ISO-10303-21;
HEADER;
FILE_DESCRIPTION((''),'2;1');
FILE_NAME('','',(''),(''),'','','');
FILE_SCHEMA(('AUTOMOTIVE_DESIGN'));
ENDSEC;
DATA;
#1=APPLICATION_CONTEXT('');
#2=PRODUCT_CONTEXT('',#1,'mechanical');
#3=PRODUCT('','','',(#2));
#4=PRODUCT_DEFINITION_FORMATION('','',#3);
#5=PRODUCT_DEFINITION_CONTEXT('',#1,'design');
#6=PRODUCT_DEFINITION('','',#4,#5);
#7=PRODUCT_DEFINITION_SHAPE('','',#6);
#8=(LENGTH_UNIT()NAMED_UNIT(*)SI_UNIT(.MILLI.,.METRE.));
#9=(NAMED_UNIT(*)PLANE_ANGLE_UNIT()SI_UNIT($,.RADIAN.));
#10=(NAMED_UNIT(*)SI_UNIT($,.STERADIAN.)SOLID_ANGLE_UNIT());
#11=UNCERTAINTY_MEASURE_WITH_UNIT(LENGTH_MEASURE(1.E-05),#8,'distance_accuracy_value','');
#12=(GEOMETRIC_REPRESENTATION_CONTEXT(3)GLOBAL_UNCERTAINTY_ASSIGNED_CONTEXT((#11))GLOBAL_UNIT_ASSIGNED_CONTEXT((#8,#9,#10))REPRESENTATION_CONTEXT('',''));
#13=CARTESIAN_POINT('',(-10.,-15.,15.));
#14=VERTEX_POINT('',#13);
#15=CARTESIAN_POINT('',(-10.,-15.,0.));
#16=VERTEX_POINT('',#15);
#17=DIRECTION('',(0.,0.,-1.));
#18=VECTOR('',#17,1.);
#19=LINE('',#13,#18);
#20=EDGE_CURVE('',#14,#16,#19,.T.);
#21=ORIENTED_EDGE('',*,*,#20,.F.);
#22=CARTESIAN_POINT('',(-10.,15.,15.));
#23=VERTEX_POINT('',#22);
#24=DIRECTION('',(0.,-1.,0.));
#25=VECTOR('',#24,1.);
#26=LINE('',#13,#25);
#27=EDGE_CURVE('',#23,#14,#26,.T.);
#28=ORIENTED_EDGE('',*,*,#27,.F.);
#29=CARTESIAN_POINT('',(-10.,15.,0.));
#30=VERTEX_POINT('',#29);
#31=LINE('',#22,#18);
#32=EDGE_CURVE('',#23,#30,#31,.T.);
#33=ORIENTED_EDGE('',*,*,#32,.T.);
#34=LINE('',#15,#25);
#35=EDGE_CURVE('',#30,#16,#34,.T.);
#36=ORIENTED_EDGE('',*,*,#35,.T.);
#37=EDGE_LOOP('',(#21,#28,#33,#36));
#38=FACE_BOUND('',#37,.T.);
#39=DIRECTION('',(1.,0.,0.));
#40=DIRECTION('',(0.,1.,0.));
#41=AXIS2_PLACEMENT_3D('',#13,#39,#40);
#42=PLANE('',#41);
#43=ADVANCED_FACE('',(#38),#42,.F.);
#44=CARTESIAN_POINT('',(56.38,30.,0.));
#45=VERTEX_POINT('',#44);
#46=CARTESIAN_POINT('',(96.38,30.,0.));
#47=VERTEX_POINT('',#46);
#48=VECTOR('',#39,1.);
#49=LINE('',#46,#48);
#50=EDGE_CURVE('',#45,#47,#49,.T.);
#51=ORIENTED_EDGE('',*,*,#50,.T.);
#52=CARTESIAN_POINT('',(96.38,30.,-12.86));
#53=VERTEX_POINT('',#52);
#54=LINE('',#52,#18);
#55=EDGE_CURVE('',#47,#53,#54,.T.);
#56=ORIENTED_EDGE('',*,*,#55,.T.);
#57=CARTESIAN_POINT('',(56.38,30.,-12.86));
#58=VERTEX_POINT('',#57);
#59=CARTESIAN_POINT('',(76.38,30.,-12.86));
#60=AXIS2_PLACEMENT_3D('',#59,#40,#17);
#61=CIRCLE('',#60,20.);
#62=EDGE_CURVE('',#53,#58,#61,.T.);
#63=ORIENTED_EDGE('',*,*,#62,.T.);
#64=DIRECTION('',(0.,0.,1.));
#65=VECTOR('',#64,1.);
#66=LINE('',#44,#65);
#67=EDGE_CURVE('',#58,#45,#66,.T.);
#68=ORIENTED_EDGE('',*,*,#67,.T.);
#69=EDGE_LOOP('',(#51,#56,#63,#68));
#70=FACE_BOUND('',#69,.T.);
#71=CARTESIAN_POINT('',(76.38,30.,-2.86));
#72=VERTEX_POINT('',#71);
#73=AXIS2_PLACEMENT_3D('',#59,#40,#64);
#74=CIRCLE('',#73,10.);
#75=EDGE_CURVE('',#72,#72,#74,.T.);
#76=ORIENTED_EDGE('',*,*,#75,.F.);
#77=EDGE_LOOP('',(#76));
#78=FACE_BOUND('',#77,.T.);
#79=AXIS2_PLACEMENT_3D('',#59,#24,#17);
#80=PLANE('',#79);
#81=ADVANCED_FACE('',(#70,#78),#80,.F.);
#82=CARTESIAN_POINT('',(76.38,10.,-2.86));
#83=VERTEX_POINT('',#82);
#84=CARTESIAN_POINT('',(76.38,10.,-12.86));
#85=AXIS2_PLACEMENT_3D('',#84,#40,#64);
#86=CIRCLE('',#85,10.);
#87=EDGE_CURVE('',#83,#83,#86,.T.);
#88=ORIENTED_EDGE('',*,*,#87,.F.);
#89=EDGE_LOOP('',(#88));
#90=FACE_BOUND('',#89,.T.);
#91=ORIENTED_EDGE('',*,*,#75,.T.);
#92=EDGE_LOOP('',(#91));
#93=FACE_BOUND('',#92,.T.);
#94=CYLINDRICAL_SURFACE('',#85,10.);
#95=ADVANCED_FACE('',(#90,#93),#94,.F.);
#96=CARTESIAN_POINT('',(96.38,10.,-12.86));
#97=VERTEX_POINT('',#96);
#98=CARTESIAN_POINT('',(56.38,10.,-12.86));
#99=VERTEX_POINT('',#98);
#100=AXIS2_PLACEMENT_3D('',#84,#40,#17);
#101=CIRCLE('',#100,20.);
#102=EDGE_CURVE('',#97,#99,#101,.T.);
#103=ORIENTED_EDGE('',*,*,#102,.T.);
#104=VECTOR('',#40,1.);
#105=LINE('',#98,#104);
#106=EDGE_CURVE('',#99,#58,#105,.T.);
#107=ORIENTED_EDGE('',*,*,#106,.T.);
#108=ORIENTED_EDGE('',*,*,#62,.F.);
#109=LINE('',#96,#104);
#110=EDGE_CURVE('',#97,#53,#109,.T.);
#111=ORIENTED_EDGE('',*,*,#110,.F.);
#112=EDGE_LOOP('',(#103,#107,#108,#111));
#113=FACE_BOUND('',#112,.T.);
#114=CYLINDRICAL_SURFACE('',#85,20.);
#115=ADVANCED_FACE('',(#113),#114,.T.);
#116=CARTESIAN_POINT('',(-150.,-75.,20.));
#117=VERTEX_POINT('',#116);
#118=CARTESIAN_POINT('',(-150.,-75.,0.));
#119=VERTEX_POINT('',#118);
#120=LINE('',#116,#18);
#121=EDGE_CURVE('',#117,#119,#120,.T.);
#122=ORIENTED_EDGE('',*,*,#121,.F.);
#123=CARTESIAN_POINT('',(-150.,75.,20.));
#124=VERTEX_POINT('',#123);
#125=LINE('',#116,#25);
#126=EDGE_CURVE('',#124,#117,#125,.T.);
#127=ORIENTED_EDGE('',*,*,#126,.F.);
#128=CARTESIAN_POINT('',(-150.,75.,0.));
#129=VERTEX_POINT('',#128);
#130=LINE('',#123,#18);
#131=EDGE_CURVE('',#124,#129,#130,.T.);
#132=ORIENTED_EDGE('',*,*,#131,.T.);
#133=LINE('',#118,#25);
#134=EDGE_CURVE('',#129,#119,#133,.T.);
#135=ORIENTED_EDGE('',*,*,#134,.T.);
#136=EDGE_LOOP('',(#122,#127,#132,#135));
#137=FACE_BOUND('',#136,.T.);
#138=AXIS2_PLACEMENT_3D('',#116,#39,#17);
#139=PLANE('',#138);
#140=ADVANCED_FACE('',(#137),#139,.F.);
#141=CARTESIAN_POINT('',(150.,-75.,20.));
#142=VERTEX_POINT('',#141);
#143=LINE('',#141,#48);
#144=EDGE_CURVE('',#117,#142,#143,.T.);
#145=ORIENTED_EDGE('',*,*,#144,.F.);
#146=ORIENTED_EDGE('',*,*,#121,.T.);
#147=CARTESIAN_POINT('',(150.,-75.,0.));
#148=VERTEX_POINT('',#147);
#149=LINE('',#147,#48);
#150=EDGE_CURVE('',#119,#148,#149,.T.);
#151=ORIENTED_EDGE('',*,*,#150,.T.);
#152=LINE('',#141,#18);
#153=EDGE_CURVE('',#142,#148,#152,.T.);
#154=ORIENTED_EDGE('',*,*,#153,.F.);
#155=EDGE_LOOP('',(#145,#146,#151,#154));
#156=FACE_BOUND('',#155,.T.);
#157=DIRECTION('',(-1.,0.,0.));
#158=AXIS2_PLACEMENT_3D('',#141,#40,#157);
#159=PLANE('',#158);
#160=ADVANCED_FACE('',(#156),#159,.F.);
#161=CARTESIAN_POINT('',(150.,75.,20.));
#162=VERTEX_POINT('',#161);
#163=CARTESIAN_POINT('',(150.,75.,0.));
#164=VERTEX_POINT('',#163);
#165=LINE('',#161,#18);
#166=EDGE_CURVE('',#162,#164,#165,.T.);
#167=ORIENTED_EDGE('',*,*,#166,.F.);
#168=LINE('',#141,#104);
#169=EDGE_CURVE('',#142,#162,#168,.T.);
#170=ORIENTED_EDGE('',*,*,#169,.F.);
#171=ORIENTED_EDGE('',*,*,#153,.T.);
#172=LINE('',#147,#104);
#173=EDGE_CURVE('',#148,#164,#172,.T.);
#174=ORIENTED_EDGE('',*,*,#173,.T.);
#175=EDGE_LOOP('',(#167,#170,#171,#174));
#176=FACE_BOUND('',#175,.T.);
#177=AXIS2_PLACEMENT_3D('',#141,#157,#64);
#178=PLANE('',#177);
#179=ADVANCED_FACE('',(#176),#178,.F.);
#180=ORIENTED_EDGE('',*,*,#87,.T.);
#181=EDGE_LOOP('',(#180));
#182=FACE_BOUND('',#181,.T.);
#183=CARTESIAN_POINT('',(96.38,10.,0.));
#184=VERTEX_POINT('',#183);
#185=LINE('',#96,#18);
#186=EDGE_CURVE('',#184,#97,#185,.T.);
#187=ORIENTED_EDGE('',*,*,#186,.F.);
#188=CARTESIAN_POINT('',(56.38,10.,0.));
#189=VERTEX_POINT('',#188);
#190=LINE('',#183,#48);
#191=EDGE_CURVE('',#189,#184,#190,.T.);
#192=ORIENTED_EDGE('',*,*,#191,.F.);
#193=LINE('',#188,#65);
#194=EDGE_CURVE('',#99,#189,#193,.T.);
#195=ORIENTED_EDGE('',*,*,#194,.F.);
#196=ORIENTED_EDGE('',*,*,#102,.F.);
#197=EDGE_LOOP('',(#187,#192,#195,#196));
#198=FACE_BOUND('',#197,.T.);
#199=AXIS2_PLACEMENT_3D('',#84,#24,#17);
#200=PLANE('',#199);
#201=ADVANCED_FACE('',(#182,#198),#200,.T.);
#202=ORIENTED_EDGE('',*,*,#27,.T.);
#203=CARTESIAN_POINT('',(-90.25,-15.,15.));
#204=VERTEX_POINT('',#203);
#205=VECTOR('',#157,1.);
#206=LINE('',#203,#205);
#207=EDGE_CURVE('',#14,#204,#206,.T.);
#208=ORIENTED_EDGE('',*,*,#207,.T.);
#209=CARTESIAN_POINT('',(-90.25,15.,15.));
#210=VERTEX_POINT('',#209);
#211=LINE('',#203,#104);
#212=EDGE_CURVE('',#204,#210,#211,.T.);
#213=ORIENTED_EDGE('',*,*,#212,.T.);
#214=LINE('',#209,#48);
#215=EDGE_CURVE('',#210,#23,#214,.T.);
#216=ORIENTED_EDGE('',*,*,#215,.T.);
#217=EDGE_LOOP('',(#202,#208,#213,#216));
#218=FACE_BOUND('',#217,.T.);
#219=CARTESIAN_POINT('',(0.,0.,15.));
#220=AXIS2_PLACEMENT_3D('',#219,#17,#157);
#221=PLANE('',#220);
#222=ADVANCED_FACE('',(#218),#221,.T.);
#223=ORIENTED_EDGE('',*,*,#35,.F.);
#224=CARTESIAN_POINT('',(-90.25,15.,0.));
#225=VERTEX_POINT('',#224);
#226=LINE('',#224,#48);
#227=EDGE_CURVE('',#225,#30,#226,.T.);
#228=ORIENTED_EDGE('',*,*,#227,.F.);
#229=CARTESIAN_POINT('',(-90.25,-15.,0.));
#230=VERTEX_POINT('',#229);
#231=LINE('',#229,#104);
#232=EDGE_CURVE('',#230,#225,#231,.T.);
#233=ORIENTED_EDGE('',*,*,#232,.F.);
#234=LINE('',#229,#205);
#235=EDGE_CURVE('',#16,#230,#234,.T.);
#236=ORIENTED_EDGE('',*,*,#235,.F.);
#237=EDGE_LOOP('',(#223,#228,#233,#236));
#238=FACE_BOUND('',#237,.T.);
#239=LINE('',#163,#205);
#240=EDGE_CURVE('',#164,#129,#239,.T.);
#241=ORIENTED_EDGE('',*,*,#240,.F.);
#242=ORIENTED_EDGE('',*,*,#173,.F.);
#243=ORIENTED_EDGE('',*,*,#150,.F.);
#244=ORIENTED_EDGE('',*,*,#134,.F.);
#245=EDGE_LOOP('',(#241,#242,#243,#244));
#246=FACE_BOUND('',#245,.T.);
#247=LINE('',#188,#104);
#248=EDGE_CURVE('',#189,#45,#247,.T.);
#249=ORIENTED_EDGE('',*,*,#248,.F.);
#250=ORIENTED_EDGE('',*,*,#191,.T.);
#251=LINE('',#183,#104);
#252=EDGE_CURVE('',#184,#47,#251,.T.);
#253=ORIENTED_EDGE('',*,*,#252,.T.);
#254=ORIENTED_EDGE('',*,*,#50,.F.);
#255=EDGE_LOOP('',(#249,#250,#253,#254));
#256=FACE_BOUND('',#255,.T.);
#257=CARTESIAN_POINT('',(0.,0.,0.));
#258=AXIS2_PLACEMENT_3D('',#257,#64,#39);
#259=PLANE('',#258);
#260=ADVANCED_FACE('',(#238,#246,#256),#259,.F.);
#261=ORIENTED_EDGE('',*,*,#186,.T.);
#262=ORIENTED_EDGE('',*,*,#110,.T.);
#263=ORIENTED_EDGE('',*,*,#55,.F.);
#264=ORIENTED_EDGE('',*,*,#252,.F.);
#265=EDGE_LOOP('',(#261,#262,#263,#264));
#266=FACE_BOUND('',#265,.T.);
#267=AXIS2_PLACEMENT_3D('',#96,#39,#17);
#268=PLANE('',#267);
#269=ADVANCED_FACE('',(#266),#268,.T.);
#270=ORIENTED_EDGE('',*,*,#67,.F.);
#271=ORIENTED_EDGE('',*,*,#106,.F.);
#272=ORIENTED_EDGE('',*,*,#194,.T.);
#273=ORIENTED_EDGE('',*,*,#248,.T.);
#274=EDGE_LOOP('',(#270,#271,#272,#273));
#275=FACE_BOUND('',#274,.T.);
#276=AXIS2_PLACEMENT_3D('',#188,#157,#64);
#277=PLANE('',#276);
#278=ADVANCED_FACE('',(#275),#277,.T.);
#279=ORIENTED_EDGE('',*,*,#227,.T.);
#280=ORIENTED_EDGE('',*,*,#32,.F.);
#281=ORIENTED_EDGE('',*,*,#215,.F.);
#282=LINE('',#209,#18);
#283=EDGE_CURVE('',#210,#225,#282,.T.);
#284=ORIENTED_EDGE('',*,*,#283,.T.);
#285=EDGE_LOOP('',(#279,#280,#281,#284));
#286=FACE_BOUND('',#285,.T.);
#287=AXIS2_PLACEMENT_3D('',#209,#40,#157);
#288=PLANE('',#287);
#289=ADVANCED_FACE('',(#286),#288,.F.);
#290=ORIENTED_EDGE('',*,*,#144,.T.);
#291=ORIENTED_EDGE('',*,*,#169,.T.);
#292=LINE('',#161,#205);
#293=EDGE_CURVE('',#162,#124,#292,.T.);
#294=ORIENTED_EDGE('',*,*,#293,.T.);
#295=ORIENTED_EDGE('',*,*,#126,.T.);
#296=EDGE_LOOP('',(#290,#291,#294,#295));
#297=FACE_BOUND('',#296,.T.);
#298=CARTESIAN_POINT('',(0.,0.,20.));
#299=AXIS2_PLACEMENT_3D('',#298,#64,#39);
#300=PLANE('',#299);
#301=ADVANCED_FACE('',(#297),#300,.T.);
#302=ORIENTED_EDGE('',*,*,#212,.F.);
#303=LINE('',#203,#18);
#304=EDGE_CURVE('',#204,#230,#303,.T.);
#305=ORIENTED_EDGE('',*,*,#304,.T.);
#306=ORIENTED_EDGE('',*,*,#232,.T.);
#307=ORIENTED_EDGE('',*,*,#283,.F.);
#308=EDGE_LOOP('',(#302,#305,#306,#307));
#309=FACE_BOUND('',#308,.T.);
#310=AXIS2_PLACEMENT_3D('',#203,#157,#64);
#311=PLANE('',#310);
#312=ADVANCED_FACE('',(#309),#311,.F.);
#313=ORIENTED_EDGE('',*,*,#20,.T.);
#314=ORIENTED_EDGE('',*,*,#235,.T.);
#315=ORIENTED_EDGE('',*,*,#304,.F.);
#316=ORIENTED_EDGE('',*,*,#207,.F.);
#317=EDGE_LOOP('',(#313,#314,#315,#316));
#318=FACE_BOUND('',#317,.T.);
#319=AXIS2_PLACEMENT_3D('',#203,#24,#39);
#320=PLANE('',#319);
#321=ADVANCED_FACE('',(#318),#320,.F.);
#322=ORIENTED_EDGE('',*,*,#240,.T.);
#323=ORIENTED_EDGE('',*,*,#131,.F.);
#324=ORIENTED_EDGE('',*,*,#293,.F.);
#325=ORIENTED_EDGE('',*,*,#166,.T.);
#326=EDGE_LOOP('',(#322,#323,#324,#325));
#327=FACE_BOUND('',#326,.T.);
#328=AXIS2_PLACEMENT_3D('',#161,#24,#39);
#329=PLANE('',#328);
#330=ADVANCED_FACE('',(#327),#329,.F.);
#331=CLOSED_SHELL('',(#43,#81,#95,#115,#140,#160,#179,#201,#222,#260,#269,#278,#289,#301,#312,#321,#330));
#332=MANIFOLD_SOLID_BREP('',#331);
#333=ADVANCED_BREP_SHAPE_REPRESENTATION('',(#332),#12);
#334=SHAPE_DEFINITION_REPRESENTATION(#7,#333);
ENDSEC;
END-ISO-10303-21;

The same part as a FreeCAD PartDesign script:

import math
import FreeCAD as App
import Part
import Sketcher
from FreeCAD import Vector
Q = App.Units.Quantity


def add_polygon(sketch, points):
    """Adds a closed chain of lines whose ends are joined by coincident constraints."""
    first, n = sketch.GeometryCount, len(points)
    for a, b in zip(points, points[1:] + points[:1]):
        sketch.addGeometry(Part.LineSegment(App.Vector(*a, 0), App.Vector(*b, 0)), False)
    for i in range(n):
        sketch.addConstraint(Sketcher.Constraint("Coincident", first + i, 2, first + (i + 1) % n, 1))

doc = App.newDocument("Part")
body = doc.addObject("PartDesign::Body", "Body")

# Sketch on XY plane
sketch1 = body.newObject("Sketcher::SketchObject", "Sketch")
sketch1.AttachmentSupport = (doc.getObject("XY_Plane"), [""])
sketch1.MapMode = "FlatFace"
add_polygon(sketch1, [(-150, 75), (-150, -75), (150, -75), (150, 75)])  # lines 0-3
sketch1.addConstraint([
    Sketcher.Constraint("Vertical", 0),
    Sketcher.Constraint("Horizontal", 1),
    Sketcher.Constraint("Vertical", 2),
    Sketcher.Constraint("Horizontal", 3),
    Sketcher.Constraint("Symmetric", 0, 2, 2, 2, -1, 1),
    Sketcher.Constraint("DistanceX", 1, 1, 1, 2, Q("300 mm")),
    Sketcher.Constraint("DistanceY", 0, 2, 0, 1, Q("150 mm")),
])
pad1 = body.newObject("PartDesign::Pad", "Pad")
pad1.Profile = sketch1
pad1.Length = 20

# Sketch on XY plane
sketch2 = body.newObject("Sketcher::SketchObject", "Sketch001")
sketch2.AttachmentSupport = (doc.getObject("XY_Plane"), [""])
sketch2.MapMode = "FlatFace"
add_polygon(sketch2, [(-10, 15), (-10, -15), (-90.25, -15), (-90.25, 15)])  # lines 0-3
sketch2.addConstraint([
    Sketcher.Constraint("Vertical", 0),
    Sketcher.Constraint("Horizontal", 1),
    Sketcher.Constraint("Vertical", 2),
    Sketcher.Constraint("Horizontal", 3),
    Sketcher.Constraint("DistanceY", 0, 2, 0, 1, Q("30 mm")),
    Sketcher.Constraint("DistanceX", 0, 2, -1, 1, Q("10 mm")),
    Sketcher.Constraint("DistanceY", 0, 2, -1, 1, Q("15 mm")),
    Sketcher.Constraint("DistanceX", 1, 2, 1, 1, Q("80.25 mm")),
])
pocket1 = body.newObject("PartDesign::Pocket", "Pocket")
pocket1.Profile = sketch2
pocket1.Length = 15
pocket1.Reversed = True

# Sketch on XZ plane
sketch3 = body.newObject("Sketcher::SketchObject", "Sketch002")
sketch3.AttachmentSupport = (doc.getObject("XZ_Plane"), [""])
sketch3.MapMode = "FlatFace"
sketch3.AttachmentOffset = App.Placement(Vector(0, 0, -30), App.Rotation())
sketch3.addGeometry([
    Part.LineSegment(Vector(56.38, -12.86, 0), Vector(56.38, 0, 0)),  # 0
    Part.LineSegment(Vector(56.38, 0, 0), Vector(96.38, 0, 0)),  # 1
    Part.LineSegment(Vector(96.38, 0, 0), Vector(96.38, -12.86, 0)),  # 2
    Part.ArcOfCircle(Part.Circle(Vector(76.38, -12.86, 0), Vector(0, 0, 1), 20), math.radians(180), math.radians(360)),  # 3
    Part.Circle(Vector(76.38, -12.86, 0), Vector(0, 0, 1), 10),  # 4
], False)
sketch3.addConstraint([
    Sketcher.Constraint("Coincident", 0, 2, 1, 1),
    Sketcher.Constraint("Coincident", 1, 2, 2, 1),
    Sketcher.Constraint("Tangent", 2, 2, 3, 2),
    Sketcher.Constraint("Tangent", 3, 1, 0, 1),
    Sketcher.Constraint("Vertical", 0),
    Sketcher.Constraint("Horizontal", 1),
    Sketcher.Constraint("Vertical", 2),
    Sketcher.Constraint("Coincident", 4, 3, 3, 3),
    Sketcher.Constraint("PointOnObject", 0, 2, -1),
    Sketcher.Constraint("Diameter", 4, Q("20 mm")),
    Sketcher.Constraint("Radius", 3, Q("20 mm")),
    Sketcher.Constraint("DistanceY", 0, 1, 0, 2, Q("12.86 mm")),
    Sketcher.Constraint("DistanceX", -1, 1, 3, 3, Q("76.38 mm")),
])
pad2 = body.newObject("PartDesign::Pad", "Pad001")
pad2.Profile = sketch3
pad2.Length = 20

doc.recompute()
